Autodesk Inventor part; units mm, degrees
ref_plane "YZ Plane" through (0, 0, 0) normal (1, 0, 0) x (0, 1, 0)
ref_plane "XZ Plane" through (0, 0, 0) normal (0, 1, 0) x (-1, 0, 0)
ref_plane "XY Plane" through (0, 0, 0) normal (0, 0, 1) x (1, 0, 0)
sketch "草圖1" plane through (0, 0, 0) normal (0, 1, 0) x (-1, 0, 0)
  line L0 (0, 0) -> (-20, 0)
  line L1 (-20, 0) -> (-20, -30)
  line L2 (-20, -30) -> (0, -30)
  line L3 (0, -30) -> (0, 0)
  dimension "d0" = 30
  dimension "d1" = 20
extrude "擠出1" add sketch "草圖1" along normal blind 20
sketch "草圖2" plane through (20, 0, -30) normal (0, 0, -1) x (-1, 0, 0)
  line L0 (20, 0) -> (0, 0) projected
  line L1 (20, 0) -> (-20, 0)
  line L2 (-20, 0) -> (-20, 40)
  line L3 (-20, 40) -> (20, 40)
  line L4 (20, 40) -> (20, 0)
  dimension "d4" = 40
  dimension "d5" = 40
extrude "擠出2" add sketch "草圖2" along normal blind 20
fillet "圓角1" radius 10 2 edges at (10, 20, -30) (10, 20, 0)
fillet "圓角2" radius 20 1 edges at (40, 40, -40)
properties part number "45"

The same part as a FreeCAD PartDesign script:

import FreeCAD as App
import Part
import Sketcher
from FreeCAD import Vector
Q = App.Units.Quantity


def edges_at(feature, points):
    """Names of the edges that pass closest to the given points."""
    edges = feature.Shape.Edges
    near = lambda p: min(range(len(edges)), key=lambda i: edges[i].distToShape(Part.Vertex(*p))[0])
    return sorted({f"Edge{near(p) + 1}" for p in points})


def add_polygon(sketch, points):
    """Adds a closed chain of lines whose ends are joined by coincident constraints."""
    first, n = sketch.GeometryCount, len(points)
    for a, b in zip(points, points[1:] + points[:1]):
        sketch.addGeometry(Part.LineSegment(App.Vector(*a, 0), App.Vector(*b, 0)), False)
    for i in range(n):
        sketch.addConstraint(Sketcher.Constraint("Coincident", first + i, 2, first + (i + 1) % n, 1))

doc = App.newDocument("Part")
body = doc.addObject("PartDesign::Body", "Body")

# Sketch on XZ plane
sketch1 = body.newObject("Sketcher::SketchObject", "Sketch")
sketch1.AttachmentSupport = (doc.getObject("XZ_Plane"), [""])
sketch1.MapMode = "FlatFace"
add_polygon(sketch1, [(0, -30), (0, 0), (20, 0), (20, -30)])  # lines 0-3
sketch1.addConstraint([
    Sketcher.Constraint("Vertical", 0),
    Sketcher.Constraint("Horizontal", 1),
    Sketcher.Constraint("Vertical", 2),
    Sketcher.Constraint("Horizontal", 3),
    Sketcher.Constraint("Coincident", 0, 2, -1, 1),
    Sketcher.Constraint("DistanceX", 1, 1, 1, 2, Q("20 mm")),
    Sketcher.Constraint("DistanceY", 0, 1, 0, 2, Q("30 mm")),
])
pad1 = body.newObject("PartDesign::Pad", "Pad")
pad1.Profile = sketch1
pad1.Length = 20
pad1.Reversed = True

# Sketch on XY plane
sketch2 = body.newObject("Sketcher::SketchObject", "Sketch001")
sketch2.AttachmentSupport = (doc.getObject("XY_Plane"), [""])
sketch2.MapMode = "FlatFace"
sketch2.AttachmentOffset = App.Placement(Vector(0, 0, -30), App.Rotation())
add_polygon(sketch2, [(40, 0), (0, 0), (0, 40), (40, 40)])  # lines 0-3
sketch2.addConstraint([
    Sketcher.Constraint("Horizontal", 0),
    Sketcher.Constraint("Vertical", 1),
    Sketcher.Constraint("Horizontal", 2),
    Sketcher.Constraint("Vertical", 3),
    Sketcher.Constraint("Coincident", 0, 2, -1, 1),
    Sketcher.Constraint("Equal", 2, 1),
    Sketcher.Constraint("DistanceX", 0, 2, 0, 1, Q("40 mm")),
])
pad2 = body.newObject("PartDesign::Pad", "Pad001")
pad2.Profile = sketch2
pad2.Length = 20
pad2.Reversed = True
doc.recompute()

fillet = body.newObject("PartDesign::Fillet", "Fillet")
fillet.Base = (pad2, edges_at(pad2, [(10, 20, -30), (10, 20, 0)]))
fillet.Radius = 10
doc.recompute()

fillet2 = body.newObject("PartDesign::Fillet", "Fillet001")
fillet2.Base = (fillet, edges_at(fillet, [(40, 40, -40)]))
fillet2.Radius = 20

doc.recompute()
